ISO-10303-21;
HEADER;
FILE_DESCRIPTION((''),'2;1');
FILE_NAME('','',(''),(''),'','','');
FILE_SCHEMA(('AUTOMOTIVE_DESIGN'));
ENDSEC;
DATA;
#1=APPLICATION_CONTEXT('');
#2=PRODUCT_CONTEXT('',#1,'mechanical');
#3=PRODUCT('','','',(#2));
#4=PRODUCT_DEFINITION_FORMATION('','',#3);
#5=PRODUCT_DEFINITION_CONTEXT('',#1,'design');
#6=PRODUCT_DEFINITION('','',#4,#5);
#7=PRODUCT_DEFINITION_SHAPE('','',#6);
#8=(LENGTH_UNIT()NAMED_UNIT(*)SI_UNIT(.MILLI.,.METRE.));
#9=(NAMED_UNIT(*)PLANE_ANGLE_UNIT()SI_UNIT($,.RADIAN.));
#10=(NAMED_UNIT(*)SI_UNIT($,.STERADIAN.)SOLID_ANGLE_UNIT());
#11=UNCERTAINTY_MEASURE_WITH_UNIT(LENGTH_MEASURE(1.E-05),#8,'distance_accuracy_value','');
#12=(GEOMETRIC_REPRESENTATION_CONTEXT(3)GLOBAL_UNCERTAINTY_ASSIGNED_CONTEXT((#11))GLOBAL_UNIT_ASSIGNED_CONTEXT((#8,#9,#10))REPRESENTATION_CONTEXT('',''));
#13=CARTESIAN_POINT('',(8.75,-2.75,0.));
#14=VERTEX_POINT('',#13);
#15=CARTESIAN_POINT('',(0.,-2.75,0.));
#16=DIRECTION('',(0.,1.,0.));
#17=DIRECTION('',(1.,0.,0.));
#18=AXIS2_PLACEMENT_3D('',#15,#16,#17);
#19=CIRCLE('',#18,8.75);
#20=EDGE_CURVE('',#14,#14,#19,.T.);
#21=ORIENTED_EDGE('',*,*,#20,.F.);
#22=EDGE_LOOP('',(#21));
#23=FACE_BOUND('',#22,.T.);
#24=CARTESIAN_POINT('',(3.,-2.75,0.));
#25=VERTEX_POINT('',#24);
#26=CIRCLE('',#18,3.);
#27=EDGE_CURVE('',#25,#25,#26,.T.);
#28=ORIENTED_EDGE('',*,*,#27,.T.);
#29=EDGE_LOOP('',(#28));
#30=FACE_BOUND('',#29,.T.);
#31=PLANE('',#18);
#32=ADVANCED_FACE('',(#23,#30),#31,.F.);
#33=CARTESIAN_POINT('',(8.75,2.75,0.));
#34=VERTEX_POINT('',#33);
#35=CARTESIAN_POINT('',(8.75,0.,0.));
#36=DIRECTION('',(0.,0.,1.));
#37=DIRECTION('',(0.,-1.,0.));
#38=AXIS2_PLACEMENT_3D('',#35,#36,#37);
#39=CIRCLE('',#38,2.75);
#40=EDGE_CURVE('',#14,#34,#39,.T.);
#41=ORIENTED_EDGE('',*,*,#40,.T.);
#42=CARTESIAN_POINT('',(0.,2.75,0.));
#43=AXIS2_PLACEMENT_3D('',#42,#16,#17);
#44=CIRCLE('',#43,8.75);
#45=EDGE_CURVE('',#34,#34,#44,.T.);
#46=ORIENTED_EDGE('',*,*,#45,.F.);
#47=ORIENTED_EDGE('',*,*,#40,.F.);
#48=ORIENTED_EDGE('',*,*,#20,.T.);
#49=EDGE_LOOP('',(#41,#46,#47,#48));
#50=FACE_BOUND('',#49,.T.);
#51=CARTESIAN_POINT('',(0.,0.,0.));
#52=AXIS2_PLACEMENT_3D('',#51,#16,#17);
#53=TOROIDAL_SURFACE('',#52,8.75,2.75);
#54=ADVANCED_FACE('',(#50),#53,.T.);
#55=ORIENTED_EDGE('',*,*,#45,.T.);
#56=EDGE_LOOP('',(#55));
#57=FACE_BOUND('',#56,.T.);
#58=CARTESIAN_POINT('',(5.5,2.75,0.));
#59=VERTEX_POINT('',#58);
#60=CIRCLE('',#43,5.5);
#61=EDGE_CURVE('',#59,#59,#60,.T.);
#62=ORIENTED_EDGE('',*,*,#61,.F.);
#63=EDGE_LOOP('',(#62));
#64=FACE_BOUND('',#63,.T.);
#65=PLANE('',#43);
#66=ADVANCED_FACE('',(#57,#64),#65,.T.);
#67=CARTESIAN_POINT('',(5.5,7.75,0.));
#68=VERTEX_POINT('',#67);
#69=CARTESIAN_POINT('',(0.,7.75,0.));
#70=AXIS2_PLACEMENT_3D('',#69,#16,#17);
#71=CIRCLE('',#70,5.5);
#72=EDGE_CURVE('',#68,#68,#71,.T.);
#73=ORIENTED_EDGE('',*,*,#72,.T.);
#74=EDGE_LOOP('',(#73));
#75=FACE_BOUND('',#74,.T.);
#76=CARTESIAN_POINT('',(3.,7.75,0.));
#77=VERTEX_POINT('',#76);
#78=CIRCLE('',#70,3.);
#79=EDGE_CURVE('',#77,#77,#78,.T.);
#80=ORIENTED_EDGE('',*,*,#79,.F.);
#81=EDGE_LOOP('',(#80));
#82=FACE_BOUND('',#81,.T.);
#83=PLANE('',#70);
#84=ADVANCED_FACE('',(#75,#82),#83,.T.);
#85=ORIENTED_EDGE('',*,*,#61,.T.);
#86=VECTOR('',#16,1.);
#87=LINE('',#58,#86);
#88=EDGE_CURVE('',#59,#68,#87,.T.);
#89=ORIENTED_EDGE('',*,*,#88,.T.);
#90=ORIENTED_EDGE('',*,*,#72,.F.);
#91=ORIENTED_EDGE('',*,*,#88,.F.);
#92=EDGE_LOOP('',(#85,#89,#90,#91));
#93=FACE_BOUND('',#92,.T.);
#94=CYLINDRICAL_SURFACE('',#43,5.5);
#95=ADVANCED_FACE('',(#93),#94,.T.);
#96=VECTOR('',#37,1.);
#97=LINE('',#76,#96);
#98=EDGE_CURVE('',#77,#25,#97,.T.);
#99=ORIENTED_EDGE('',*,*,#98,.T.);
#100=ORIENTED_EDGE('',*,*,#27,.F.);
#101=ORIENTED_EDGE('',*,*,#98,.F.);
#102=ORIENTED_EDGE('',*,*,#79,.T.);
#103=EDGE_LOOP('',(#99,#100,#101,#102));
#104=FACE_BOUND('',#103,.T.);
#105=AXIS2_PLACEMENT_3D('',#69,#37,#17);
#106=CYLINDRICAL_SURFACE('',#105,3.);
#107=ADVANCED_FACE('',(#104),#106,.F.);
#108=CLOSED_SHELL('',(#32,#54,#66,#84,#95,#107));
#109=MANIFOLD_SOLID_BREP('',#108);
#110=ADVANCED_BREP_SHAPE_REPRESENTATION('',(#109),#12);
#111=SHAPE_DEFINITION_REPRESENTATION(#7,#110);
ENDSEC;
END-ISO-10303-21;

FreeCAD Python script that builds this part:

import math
import FreeCAD as App
import Part
import Sketcher
from FreeCAD import Vector
Q = App.Units.Quantity

doc = App.newDocument("Part")
body = doc.addObject("PartDesign::Body", "Body")

# Sketch on XY plane
sketch1 = body.newObject("Sketcher::SketchObject", "Sketch")
sketch1.AttachmentSupport = (doc.getObject("XY_Plane"), [""])
sketch1.MapMode = "FlatFace"
sketch1.addGeometry([
    Part.LineSegment(Vector(3, -2.75, 0), Vector(8.75, -2.75, 0)),  # 0
    Part.ArcOfCircle(Part.Circle(Vector(8.75, 0, 0), Vector(0, 0, 1), 2.75), math.radians(-90), math.radians(90)),  # 1
    Part.LineSegment(Vector(8.75, 2.75, 0), Vector(5.5, 2.75, 0)),  # 2
    Part.LineSegment(Vector(5.5, 2.75, 0), Vector(5.5, 7.75, 0)),  # 3
    Part.LineSegment(Vector(5.5, 7.75, 0), Vector(3, 7.75, 0)),  # 4
    Part.LineSegment(Vector(3, 7.75, 0), Vector(3, -2.75, 0)),  # 5
], False)
sketch1.addConstraint([
    Sketcher.Constraint("Tangent", 0, 2, 1, 1),
    Sketcher.Constraint("Tangent", 1, 2, 2, 1),
    Sketcher.Constraint("Coincident", 2, 2, 3, 1),
    Sketcher.Constraint("Coincident", 3, 2, 4, 1),
    Sketcher.Constraint("Coincident", 4, 2, 5, 1),
    Sketcher.Constraint("Coincident", 5, 2, 0, 1),
    Sketcher.Constraint("Horizontal", 0),
    Sketcher.Constraint("Horizontal", 2),
    Sketcher.Constraint("Vertical", 3),
    Sketcher.Constraint("Horizontal", 4),
    Sketcher.Constraint("Vertical", 5),
    Sketcher.Constraint("PointOnObject", 1, 3, -1),
    Sketcher.Constraint("DistanceY", 3, 1, 3, 2, Q("5 mm")),
    Sketcher.Constraint("Radius", 1, Q("2.75 mm")),
    Sketcher.Constraint("DistanceX", 4, 2, 4, 1, Q("2.5 mm")),
    Sketcher.Constraint("DistanceX", -1, 1, 4, 2, Q("3 mm")),
    Sketcher.Constraint("DistanceX", 0, 1, 0, 2, Q("5.75 mm")),
])
revolution = body.newObject("PartDesign::Revolution", "Revolution")
revolution.Profile = sketch1
revolution.ReferenceAxis = (sketch1, ["V_Axis"])
revolution.Angle = 360

doc.recompute()
